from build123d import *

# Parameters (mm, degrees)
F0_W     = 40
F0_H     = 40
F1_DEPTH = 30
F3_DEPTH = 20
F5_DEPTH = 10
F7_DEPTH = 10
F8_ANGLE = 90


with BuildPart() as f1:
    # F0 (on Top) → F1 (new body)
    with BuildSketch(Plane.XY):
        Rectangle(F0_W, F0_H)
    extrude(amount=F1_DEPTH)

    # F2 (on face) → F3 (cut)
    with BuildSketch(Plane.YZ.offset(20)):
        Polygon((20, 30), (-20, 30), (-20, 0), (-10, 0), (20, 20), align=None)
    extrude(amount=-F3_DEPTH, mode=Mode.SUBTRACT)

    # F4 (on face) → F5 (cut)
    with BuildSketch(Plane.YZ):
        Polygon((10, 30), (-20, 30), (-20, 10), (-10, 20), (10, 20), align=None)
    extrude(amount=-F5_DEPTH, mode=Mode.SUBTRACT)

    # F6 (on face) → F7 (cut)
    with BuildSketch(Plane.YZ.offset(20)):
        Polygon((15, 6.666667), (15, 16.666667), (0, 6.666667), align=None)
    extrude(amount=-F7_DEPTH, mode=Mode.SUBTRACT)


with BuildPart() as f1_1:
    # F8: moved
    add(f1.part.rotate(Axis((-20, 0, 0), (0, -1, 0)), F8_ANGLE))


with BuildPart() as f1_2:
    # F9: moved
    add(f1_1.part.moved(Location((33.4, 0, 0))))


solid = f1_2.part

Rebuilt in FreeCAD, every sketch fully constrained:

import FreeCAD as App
import Part
import Sketcher
from FreeCAD import Vector
Q = App.Units.Quantity


def add_polygon(sketch, points):
    """Adds a closed chain of lines whose ends are joined by coincident constraints."""
    first, n = sketch.GeometryCount, len(points)
    for a, b in zip(points, points[1:] + points[:1]):
        sketch.addGeometry(Part.LineSegment(App.Vector(*a, 0), App.Vector(*b, 0)), False)
    for i in range(n):
        sketch.addConstraint(Sketcher.Constraint("Coincident", first + i, 2, first + (i + 1) % n, 1))

doc = App.newDocument("Part")
body = doc.addObject("PartDesign::Body", "Body")

sketch1 = body.newObject("Sketcher::SketchObject", "Sketch")
sketch1.AttachmentSupport = (doc.getObject("XY_Plane"), [""])
sketch1.MapMode = "FlatFace"
add_polygon(sketch1, [(-20, 20), (-20, -20), (20, -20), (20, 20)])
sketch1.addConstraint(Sketcher.Constraint("Vertical", 0))
sketch1.addConstraint(Sketcher.Constraint("Horizontal", 1))
sketch1.addConstraint(Sketcher.Constraint("Vertical", 2))
sketch1.addConstraint(Sketcher.Constraint("Horizontal", 3))
sketch1.addConstraint(Sketcher.Constraint("Symmetric", 0, 2, 2, 2, -1, 1))
sketch1.addConstraint(Sketcher.Constraint("Equal", 3, 0))
sketch1.addConstraint(Sketcher.Constraint("DistanceX", 1, 1, 1, 2, Q("40 mm")))
pad1 = body.newObject("PartDesign::Pad", "Pad")
pad1.Profile = sketch1
pad1.Length = 30

sketch2 = body.newObject("Sketcher::SketchObject", "Sketch001")
sketch2.AttachmentSupport = (doc.getObject("YZ_Plane"), [""])
sketch2.MapMode = "FlatFace"
sketch2.AttachmentOffset = App.Placement(Vector(0, 0, 20), App.Rotation())
add_polygon(sketch2, [(20, 30), (-20, 30), (-20, 0), (-10, 0), (20, 20)])
sketch2.addConstraint(Sketcher.Constraint("Horizontal", 0))
sketch2.addConstraint(Sketcher.Constraint("Vertical", 1))
sketch2.addConstraint(Sketcher.Constraint("Horizontal", 2))
sketch2.addConstraint(Sketcher.Constraint("Vertical", 4))
sketch2.addConstraint(Sketcher.Constraint("PointOnObject", 1, 2, -1))
sketch2.addConstraint(Sketcher.Constraint("Equal", 2, 4))
sketch2.addConstraint(Sketcher.Constraint("DistanceX", 0, 2, 0, 1, Q("40 mm")))
sketch2.addConstraint(Sketcher.Constraint("DistanceX", 2, 1, 2, 2, Q("10 mm")))
sketch2.addConstraint(Sketcher.Constraint("DistanceY", 1, 2, 1, 1, Q("30 mm")))
sketch2.addConstraint(Sketcher.Constraint("DistanceX", 0, 2, -1, 1, Q("20 mm")))
pocket1 = body.newObject("PartDesign::Pocket", "Pocket")
pocket1.Profile = sketch2
pocket1.Length = 20

sketch3 = body.newObject("Sketcher::SketchObject", "Sketch002")
sketch3.AttachmentSupport = (doc.getObject("YZ_Plane"), [""])
sketch3.MapMode = "FlatFace"
add_polygon(sketch3, [(10, 30), (-20, 30), (-20, 10), (-10, 20), (10, 20)])
sketch3.addConstraint(Sketcher.Constraint("Horizontal", 0))
sketch3.addConstraint(Sketcher.Constraint("Vertical", 1))
sketch3.addConstraint(Sketcher.Constraint("Horizontal", 3))
sketch3.addConstraint(Sketcher.Constraint("Vertical", 4))
sketch3.addConstraint(Sketcher.Constraint("Equal", 3, 1))
sketch3.addConstraint(Sketcher.Constraint("DistanceX", 0, 2, 0, 1, Q("30 mm")))
sketch3.addConstraint(Sketcher.Constraint("DistanceX", 3, 1, 3, 2, Q("20 mm")))
sketch3.addConstraint(Sketcher.Constraint("DistanceY", 4, 1, 4, 2, Q("10 mm")))
sketch3.addConstraint(Sketcher.Constraint("DistanceX", 0, 2, -1, 1, Q("20 mm")))
sketch3.addConstraint(Sketcher.Constraint("DistanceY", -1, 1, 0, 2, Q("30 mm")))
pocket2 = body.newObject("PartDesign::Pocket", "Pocket001")
pocket2.Profile = sketch3
pocket2.Length = 10

sketch4 = body.newObject("Sketcher::SketchObject", "Sketch003")
sketch4.AttachmentSupport = (doc.getObject("YZ_Plane"), [""])
sketch4.MapMode = "FlatFace"
sketch4.AttachmentOffset = App.Placement(Vector(0, 0, 20), App.Rotation())
add_polygon(sketch4, [(15, 7), (15, 17), (0, 7)])
sketch4.addConstraint(Sketcher.Constraint("Vertical", 0))
sketch4.addConstraint(Sketcher.Constraint("Horizontal", 2))
sketch4.addConstraint(Sketcher.Constraint("PointOnObject", 1, 2, -2))
sketch4.addConstraint(Sketcher.Constraint("DistanceX", 2, 1, 2, 2, Q("15 mm")))
sketch4.addConstraint(Sketcher.Constraint("DistanceY", 0, 1, 0, 2, Q("10 mm")))
sketch4.addConstraint(Sketcher.Constraint("DistanceY", -1, 1, 0, 2, Q("16.666667 mm")))
pocket3 = body.newObject("PartDesign::Pocket", "Pocket002")
pocket3.Profile = sketch4
pocket3.Length = 10
body2 = doc.addObject("PartDesign::Body", "Body001")
doc.recompute()

body.Placement = App.Placement(Vector(-20, 0, 20), App.Rotation(Vector(0, -1, 0), 90))
boolean = body2.newObject("PartDesign::Boolean", "Boolean")
boolean.Type = "Fuse"
boolean.addObjects([body])
body3 = doc.addObject("PartDesign::Body", "Body002")
doc.recompute()

body2.Placement = App.Placement(Vector(33.4, 0, 0), App.Rotation(Vector(0, 0, 1), 0))
boolean2 = body3.newObject("PartDesign::Boolean", "Boolean001")
boolean2.Type = "Fuse"
boolean2.addObjects([body2])

doc.recompute()
